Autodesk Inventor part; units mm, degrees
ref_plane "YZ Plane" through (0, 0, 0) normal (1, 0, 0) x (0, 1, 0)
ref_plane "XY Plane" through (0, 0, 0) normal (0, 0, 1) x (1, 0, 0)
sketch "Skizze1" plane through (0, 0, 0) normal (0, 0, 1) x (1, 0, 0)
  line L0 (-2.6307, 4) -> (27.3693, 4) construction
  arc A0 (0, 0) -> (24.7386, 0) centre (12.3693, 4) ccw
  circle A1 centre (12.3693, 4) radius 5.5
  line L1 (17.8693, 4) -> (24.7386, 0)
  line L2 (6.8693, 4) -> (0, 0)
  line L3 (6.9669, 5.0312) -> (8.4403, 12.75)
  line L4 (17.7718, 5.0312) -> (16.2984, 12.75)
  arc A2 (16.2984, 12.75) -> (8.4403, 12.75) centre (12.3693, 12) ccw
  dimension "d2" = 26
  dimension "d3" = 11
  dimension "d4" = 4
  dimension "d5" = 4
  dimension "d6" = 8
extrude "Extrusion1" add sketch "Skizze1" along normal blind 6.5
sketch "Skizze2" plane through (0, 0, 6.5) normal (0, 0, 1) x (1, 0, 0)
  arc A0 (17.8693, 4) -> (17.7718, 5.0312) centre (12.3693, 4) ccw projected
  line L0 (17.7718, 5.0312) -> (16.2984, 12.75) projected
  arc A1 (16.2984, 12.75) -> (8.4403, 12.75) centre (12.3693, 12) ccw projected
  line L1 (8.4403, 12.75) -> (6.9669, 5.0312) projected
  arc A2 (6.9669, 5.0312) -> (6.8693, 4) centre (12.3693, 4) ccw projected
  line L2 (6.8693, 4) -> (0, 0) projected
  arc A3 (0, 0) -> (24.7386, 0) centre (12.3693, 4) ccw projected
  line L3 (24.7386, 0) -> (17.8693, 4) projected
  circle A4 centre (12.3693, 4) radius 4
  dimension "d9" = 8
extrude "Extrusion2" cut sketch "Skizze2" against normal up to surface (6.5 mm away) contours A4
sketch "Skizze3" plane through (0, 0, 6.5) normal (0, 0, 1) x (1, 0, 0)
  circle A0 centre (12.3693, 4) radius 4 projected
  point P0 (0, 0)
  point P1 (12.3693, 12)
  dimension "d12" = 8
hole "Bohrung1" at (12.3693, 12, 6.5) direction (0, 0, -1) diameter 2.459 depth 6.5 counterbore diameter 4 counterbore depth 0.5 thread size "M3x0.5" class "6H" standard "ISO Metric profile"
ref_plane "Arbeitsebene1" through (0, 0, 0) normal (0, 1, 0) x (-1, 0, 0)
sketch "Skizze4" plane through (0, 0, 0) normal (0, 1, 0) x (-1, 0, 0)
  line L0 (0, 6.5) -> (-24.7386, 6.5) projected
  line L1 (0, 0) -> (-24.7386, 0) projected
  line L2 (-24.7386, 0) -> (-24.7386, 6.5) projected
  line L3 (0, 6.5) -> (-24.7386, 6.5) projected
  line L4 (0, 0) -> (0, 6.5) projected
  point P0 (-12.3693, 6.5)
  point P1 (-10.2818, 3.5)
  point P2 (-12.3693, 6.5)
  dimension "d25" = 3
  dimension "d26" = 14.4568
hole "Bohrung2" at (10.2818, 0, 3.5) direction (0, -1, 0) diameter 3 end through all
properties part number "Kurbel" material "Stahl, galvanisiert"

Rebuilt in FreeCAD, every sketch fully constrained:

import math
import FreeCAD as App
import Part
import Sketcher

V = App.Vector
Q = App.Units.Quantity

doc = App.newDocument("Part")
params = doc.addObject("Spreadsheet::Sheet", "Params")
for row, (alias, value) in enumerate([
    ("sketch1_radius", "13 mm"),
    ("sketch1_radius2", "4 mm"),
    ("sketch1_radius3", "5.5 mm"),
    ("pad1_length", "6.5 mm"),
    ("sketch2_diameter", "8 mm"),
    ("pocket1_length", "6.5 mm"),
    ("hole_diameter", "2.459 mm"),
    ("hole_depth", "6.5 mm"),
    ("hole_cbore_diameter", "4 mm"),
    ("hole_cbore_depth", "0.5 mm"),
    ("sketch4_diameter", "3 mm"),
    ("hole2_diameter", "3 mm"),
], start=1):
    params.set(f"A{row}", alias)
    params.set(f"B{row}", "=" + value)
    params.setAlias(f"B{row}", alias)

body = doc.addObject("PartDesign::Body", "Body")

# Sketch on XY plane
sketch1 = body.newObject("Sketcher::SketchObject", "Sketch")
sketch1.AttachmentSupport = (doc.getObject("XY_Plane"), [""])
sketch1.MapMode = "FlatFace"
sketch1.addGeometry([
    Part.LineSegment(V(6.9, 4, 0), V(0, 0, 0)),  # 0
    Part.ArcOfCircle(Part.Circle(V(12.4, 4, 0), V(0, 0, 1), 13), math.radians(-162), math.radians(-18)),  # 1
    Part.LineSegment(V(24.7, 0, 0), V(17.9, 4, 0)),  # 2
    Part.ArcOfCircle(Part.Circle(V(12.4, 4, 0), V(0, 0, 1), 5.5), math.radians(0), math.radians(10.81)),  # 3
    Part.LineSegment(V(17.8, 5, 0), V(16.3, 12.8, 0)),  # 4
    Part.ArcOfCircle(Part.Circle(V(12.4, 12, 0), V(0, 0, 1), 4), math.radians(11), math.radians(169)),  # 5
    Part.LineSegment(V(8.4, 12.8, 0), V(7, 5, 0)),  # 6
    Part.ArcOfCircle(Part.Circle(V(12.4, 4, 0), V(0, 0, 1), 5.5), math.radians(169.19), math.radians(180)),  # 7
], False)
sketch1.addConstraint([
    Sketcher.Constraint("Coincident", 0, 2, 1, 1),
    Sketcher.Constraint("Coincident", 1, 2, 2, 1),
    Sketcher.Constraint("Coincident", 2, 2, 3, 1),
    Sketcher.Constraint("Tangent", 3, 2, 4, 1),
    Sketcher.Constraint("Tangent", 4, 2, 5, 1),
    Sketcher.Constraint("Tangent", 5, 2, 6, 1),
    Sketcher.Constraint("Tangent", 6, 2, 7, 1),
    Sketcher.Constraint("Coincident", 7, 2, 0, 1),
    Sketcher.Constraint("Coincident", 0, 2, -1, 1),
    Sketcher.Constraint("Coincident", 3, 3, 1, 3),
    Sketcher.Constraint("Coincident", 7, 3, 1, 3),
    Sketcher.Constraint("Equal", 3, 7),
    Sketcher.Constraint("PointOnObject", 1, 2, -1),
    Sketcher.Constraint("Horizontal", 7, 3, 2, 2),
    Sketcher.Constraint("Horizontal", 4, 2, 5, 2),
    Sketcher.Constraint("Horizontal", 2, 2, 7, 2),
    Sketcher.Constraint("Radius", 1, Q("13 mm")),
    Sketcher.Constraint("Radius", 5, Q("4 mm")),
    Sketcher.Constraint("Radius", 3, Q("5.5 mm")),
    Sketcher.Constraint("DistanceY", -1, 1, 1, 3, Q("4 mm")),
    Sketcher.Constraint("DistanceY", 1, 3, 5, 3, Q("8 mm")),
])
sketch1.setExpression("Constraints[16]", "Params.sketch1_radius")
sketch1.setExpression("Constraints[17]", "Params.sketch1_radius2")
sketch1.setExpression("Constraints[18]", "Params.sketch1_radius3")
pad1 = body.newObject("PartDesign::Pad", "Pad")
pad1.Profile = sketch1
pad1.setExpression("Length", "Params.pad1_length")

# Sketch on XY plane
sketch2 = body.newObject("Sketcher::SketchObject", "Sketch001")
sketch2.AttachmentSupport = (doc.getObject("XY_Plane"), [""])
sketch2.MapMode = "FlatFace"
sketch2.AttachmentOffset = App.Placement(V(0, 0, 6.5), App.Rotation())
sketch2.addGeometry(Part.Circle(V(12.4, 4, 0), V(0, 0, 1), 4), False)
sketch2.addConstraint([
    Sketcher.Constraint("Diameter", 0, Q("8 mm")),
    Sketcher.Constraint("DistanceY", -1, 1, 0, 3, Q("4 mm")),
    Sketcher.Constraint("DistanceX", -1, 1, 0, 3, Q("12.3693 mm")),
])
sketch2.setExpression("Constraints[0]", "Params.sketch2_diameter")
pocket1 = body.newObject("PartDesign::Pocket", "Pocket")
pocket1.Profile = sketch2
pocket1.setExpression("Length", "Params.pocket1_length")

# Sketch on XY plane
sketch3 = body.newObject("Sketcher::SketchObject", "Sketch002")
sketch3.AttachmentSupport = (doc.getObject("XY_Plane"), [""])
sketch3.MapMode = "FlatFace"
sketch3.AttachmentOffset = App.Placement(V(0, 0, 6.5), App.Rotation())
sketch3.addGeometry(Part.Circle(V(12.4, 12, 0), V(0, 0, 1), 1.2), False)
sketch3.addConstraint([
    Sketcher.Constraint("Diameter", 0, Q("2.459 mm")),
    Sketcher.Constraint("DistanceY", -1, 1, 0, 3, Q("12 mm")),
    Sketcher.Constraint("DistanceX", -1, 1, 0, 3, Q("12.3693 mm")),
])
doc.recompute()
hole = body.newObject("PartDesign::Hole", "Hole")
hole.Profile = sketch3
hole.ThreadType = "None"
hole.setExpression("Diameter", "Params.hole_diameter")
hole.DepthType = "Dimension"
hole.setExpression("Depth", "Params.hole_depth")
hole.DrillPoint = "Flat"
hole.HoleCutType = "Counterbore"
hole.setExpression("HoleCutDiameter", "Params.hole_cbore_diameter")
hole.setExpression("HoleCutDepth", "Params.hole_cbore_depth")

# Sketch on XZ plane
sketch4 = body.newObject("Sketcher::SketchObject", "Sketch003")
sketch4.AttachmentSupport = (doc.getObject("XZ_Plane"), [""])
sketch4.MapMode = "FlatFace"
sketch4.addGeometry(Part.Circle(V(10.3, 3.5, 0), V(0, 0, 1), 1.5), False)
sketch4.addConstraint([
    Sketcher.Constraint("Diameter", 0, Q("3 mm")),
    Sketcher.Constraint("DistanceY", -1, 1, 0, 3, Q("3.5 mm")),
    Sketcher.Constraint("DistanceX", -1, 1, 0, 3, Q("10.2818 mm")),
])
sketch4.setExpression("Constraints[0]", "Params.sketch4_diameter")
doc.recompute()
hole2 = body.newObject("PartDesign::Hole", "Hole001")
hole2.Profile = sketch4
hole2.ThreadType = "None"
hole2.setExpression("Diameter", "Params.hole2_diameter")
hole2.DepthType = "ThroughAll"
hole2.Reversed = True

doc.recompute()
